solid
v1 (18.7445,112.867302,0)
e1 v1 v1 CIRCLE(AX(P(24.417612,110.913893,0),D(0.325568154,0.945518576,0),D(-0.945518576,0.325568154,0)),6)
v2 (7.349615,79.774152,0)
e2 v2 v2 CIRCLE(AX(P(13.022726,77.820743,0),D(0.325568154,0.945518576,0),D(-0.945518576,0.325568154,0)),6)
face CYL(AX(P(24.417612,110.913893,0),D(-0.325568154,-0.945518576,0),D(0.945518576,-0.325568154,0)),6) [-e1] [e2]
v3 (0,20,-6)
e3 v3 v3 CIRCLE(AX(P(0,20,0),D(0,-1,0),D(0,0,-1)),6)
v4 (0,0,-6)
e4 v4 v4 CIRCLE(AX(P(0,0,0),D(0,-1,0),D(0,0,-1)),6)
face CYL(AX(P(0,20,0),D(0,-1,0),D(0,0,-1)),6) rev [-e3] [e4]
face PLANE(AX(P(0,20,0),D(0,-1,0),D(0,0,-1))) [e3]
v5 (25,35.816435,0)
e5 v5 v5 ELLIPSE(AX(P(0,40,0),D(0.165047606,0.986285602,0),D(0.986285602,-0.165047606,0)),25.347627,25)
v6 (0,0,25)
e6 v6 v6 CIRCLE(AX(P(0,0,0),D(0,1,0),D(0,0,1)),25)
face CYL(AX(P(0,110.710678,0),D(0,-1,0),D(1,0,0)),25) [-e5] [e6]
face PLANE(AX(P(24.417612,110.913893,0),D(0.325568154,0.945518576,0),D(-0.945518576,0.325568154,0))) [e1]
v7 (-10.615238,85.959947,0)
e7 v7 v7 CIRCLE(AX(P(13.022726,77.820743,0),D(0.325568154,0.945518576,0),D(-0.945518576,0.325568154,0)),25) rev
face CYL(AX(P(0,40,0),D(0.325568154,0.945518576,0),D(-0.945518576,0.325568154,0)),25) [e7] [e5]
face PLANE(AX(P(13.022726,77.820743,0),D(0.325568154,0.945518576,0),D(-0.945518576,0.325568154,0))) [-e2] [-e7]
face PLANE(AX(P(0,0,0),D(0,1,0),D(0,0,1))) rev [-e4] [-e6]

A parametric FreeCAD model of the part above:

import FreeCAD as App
import Part
import Sketcher
from FreeCAD import Vector
Q = App.Units.Quantity

doc = App.newDocument("Part")
params = doc.addObject("Spreadsheet::Sheet", "Params")
for row, (alias, value) in enumerate([
    ("sketch1_diameter", "50 mm"),
    ("sketch2_height", "40 mm"),
    ("sketch2_length", "40 mm"),
    ("sketch3_diameter", "12 mm"),
    ("pad1_length", "35 mm"),
    ("sketch4_diameter", "12 mm"),
    ("pocket1_length", "20 mm"),
], start=1):
    params.set(f"A{row}", alias)
    params.set(f"B{row}", "=" + value)
    params.setAlias(f"B{row}", alias)

body = doc.addObject("PartDesign::Body", "Body")

# Sketch on XZ plane
sketch1 = body.newObject("Sketcher::SketchObject", "Sketch")
sketch1.AttachmentSupport = (doc.getObject("XZ_Plane"), [""])
sketch1.MapMode = "FlatFace"
sketch1.addGeometry(Part.Circle(Vector(0, 0, 0), Vector(0, 0, 1), 25), False)
sketch1.addConstraint(Sketcher.Constraint("Coincident", 0, 3, -1, 1))
sketch1.addConstraint(Sketcher.Constraint("Diameter", 0, 50.0))
sketch1.setExpression("Constraints[1]", "Params.sketch1_diameter")

# Sketch on XY plane
sketch2 = body.newObject("Sketcher::SketchObject", "Sketch001")
sketch2.AttachmentSupport = (doc.getObject("XY_Plane"), [""])
sketch2.MapMode = "FlatFace"
sketch2.addGeometry(Part.LineSegment(Vector(13.022726, 77.820743, 0), Vector(0, 40, 0)), False)
sketch2.addGeometry(Part.LineSegment(Vector(0, 40, 0), Vector(0, 0, 0)), False)
sketch2.addConstraint(Sketcher.Constraint("Coincident", 0, 2, 1, 1))
sketch2.addConstraint(Sketcher.Constraint("Vertical", 1))
sketch2.addConstraint(Sketcher.Constraint("Coincident", 1, 2, -1, 1))
sketch2.addConstraint(Sketcher.Constraint("DistanceY", 1, 2, 1, 1, 40.0))
sketch2.addConstraint(Sketcher.Constraint("Angle", 0, Q("-109 deg")))
sketch2.addConstraint(Sketcher.Constraint("Distance", 0, 40.0))
sketch2.setExpression("Constraints[3]", "Params.sketch2_height")
sketch2.setExpression("Constraints[5]", "Params.sketch2_length")
doc.recompute()

additivepipe = body.newObject("PartDesign::AdditivePipe", "AdditivePipe")
additivepipe.Profile = sketch1
additivepipe.Spine = (sketch2, ["Edge1", "Edge2"])
additivepipe.Transition = "Right corner"

# Sketch on an angled plane
sketch3 = body.newObject("Sketcher::SketchObject", "Sketch002")
sketch3.Placement = App.Placement(Vector(25.335956, 73.580958, 0), App.Rotation(Vector(0.945518576, -0.325568154, 0), Vector(0, 0, -1), Vector(0.325568154, 0.945518576, 0), "ZXY"))
sketch3.addGeometry(Part.Circle(Vector(-13.022726, 0, 0), Vector(0, 0, 1), 6), False)
sketch3.addConstraint(Sketcher.Constraint("PointOnObject", 0, 3, -1))
sketch3.addConstraint(Sketcher.Constraint("Diameter", 0, 12.0))
sketch3.addConstraint(Sketcher.Constraint("DistanceX", 0, 3, -1, 1, 13.022726))
sketch3.setExpression("Constraints[1]", "Params.sketch3_diameter")
pad1 = body.newObject("PartDesign::Pad", "Pad")
pad1.Profile = sketch3
pad1.setExpression("Length", "Params.pad1_length")

# Sketch on XZ plane
sketch4 = body.newObject("Sketcher::SketchObject", "Sketch003")
sketch4.AttachmentSupport = (doc.getObject("XZ_Plane"), [""])
sketch4.MapMode = "FlatFace"
sketch4.addGeometry(Part.Circle(Vector(0, 0, 0), Vector(0, 0, 1), 6), False)
sketch4.addConstraint(Sketcher.Constraint("Coincident", 0, 3, -1, 1))
sketch4.addConstraint(Sketcher.Constraint("Diameter", 0, 12.0))
sketch4.setExpression("Constraints[1]", "Params.sketch4_diameter")
pocket1 = body.newObject("PartDesign::Pocket", "Pocket")
pocket1.Profile = sketch4
pocket1.setExpression("Length", "Params.pocket1_length")

doc.recompute()
